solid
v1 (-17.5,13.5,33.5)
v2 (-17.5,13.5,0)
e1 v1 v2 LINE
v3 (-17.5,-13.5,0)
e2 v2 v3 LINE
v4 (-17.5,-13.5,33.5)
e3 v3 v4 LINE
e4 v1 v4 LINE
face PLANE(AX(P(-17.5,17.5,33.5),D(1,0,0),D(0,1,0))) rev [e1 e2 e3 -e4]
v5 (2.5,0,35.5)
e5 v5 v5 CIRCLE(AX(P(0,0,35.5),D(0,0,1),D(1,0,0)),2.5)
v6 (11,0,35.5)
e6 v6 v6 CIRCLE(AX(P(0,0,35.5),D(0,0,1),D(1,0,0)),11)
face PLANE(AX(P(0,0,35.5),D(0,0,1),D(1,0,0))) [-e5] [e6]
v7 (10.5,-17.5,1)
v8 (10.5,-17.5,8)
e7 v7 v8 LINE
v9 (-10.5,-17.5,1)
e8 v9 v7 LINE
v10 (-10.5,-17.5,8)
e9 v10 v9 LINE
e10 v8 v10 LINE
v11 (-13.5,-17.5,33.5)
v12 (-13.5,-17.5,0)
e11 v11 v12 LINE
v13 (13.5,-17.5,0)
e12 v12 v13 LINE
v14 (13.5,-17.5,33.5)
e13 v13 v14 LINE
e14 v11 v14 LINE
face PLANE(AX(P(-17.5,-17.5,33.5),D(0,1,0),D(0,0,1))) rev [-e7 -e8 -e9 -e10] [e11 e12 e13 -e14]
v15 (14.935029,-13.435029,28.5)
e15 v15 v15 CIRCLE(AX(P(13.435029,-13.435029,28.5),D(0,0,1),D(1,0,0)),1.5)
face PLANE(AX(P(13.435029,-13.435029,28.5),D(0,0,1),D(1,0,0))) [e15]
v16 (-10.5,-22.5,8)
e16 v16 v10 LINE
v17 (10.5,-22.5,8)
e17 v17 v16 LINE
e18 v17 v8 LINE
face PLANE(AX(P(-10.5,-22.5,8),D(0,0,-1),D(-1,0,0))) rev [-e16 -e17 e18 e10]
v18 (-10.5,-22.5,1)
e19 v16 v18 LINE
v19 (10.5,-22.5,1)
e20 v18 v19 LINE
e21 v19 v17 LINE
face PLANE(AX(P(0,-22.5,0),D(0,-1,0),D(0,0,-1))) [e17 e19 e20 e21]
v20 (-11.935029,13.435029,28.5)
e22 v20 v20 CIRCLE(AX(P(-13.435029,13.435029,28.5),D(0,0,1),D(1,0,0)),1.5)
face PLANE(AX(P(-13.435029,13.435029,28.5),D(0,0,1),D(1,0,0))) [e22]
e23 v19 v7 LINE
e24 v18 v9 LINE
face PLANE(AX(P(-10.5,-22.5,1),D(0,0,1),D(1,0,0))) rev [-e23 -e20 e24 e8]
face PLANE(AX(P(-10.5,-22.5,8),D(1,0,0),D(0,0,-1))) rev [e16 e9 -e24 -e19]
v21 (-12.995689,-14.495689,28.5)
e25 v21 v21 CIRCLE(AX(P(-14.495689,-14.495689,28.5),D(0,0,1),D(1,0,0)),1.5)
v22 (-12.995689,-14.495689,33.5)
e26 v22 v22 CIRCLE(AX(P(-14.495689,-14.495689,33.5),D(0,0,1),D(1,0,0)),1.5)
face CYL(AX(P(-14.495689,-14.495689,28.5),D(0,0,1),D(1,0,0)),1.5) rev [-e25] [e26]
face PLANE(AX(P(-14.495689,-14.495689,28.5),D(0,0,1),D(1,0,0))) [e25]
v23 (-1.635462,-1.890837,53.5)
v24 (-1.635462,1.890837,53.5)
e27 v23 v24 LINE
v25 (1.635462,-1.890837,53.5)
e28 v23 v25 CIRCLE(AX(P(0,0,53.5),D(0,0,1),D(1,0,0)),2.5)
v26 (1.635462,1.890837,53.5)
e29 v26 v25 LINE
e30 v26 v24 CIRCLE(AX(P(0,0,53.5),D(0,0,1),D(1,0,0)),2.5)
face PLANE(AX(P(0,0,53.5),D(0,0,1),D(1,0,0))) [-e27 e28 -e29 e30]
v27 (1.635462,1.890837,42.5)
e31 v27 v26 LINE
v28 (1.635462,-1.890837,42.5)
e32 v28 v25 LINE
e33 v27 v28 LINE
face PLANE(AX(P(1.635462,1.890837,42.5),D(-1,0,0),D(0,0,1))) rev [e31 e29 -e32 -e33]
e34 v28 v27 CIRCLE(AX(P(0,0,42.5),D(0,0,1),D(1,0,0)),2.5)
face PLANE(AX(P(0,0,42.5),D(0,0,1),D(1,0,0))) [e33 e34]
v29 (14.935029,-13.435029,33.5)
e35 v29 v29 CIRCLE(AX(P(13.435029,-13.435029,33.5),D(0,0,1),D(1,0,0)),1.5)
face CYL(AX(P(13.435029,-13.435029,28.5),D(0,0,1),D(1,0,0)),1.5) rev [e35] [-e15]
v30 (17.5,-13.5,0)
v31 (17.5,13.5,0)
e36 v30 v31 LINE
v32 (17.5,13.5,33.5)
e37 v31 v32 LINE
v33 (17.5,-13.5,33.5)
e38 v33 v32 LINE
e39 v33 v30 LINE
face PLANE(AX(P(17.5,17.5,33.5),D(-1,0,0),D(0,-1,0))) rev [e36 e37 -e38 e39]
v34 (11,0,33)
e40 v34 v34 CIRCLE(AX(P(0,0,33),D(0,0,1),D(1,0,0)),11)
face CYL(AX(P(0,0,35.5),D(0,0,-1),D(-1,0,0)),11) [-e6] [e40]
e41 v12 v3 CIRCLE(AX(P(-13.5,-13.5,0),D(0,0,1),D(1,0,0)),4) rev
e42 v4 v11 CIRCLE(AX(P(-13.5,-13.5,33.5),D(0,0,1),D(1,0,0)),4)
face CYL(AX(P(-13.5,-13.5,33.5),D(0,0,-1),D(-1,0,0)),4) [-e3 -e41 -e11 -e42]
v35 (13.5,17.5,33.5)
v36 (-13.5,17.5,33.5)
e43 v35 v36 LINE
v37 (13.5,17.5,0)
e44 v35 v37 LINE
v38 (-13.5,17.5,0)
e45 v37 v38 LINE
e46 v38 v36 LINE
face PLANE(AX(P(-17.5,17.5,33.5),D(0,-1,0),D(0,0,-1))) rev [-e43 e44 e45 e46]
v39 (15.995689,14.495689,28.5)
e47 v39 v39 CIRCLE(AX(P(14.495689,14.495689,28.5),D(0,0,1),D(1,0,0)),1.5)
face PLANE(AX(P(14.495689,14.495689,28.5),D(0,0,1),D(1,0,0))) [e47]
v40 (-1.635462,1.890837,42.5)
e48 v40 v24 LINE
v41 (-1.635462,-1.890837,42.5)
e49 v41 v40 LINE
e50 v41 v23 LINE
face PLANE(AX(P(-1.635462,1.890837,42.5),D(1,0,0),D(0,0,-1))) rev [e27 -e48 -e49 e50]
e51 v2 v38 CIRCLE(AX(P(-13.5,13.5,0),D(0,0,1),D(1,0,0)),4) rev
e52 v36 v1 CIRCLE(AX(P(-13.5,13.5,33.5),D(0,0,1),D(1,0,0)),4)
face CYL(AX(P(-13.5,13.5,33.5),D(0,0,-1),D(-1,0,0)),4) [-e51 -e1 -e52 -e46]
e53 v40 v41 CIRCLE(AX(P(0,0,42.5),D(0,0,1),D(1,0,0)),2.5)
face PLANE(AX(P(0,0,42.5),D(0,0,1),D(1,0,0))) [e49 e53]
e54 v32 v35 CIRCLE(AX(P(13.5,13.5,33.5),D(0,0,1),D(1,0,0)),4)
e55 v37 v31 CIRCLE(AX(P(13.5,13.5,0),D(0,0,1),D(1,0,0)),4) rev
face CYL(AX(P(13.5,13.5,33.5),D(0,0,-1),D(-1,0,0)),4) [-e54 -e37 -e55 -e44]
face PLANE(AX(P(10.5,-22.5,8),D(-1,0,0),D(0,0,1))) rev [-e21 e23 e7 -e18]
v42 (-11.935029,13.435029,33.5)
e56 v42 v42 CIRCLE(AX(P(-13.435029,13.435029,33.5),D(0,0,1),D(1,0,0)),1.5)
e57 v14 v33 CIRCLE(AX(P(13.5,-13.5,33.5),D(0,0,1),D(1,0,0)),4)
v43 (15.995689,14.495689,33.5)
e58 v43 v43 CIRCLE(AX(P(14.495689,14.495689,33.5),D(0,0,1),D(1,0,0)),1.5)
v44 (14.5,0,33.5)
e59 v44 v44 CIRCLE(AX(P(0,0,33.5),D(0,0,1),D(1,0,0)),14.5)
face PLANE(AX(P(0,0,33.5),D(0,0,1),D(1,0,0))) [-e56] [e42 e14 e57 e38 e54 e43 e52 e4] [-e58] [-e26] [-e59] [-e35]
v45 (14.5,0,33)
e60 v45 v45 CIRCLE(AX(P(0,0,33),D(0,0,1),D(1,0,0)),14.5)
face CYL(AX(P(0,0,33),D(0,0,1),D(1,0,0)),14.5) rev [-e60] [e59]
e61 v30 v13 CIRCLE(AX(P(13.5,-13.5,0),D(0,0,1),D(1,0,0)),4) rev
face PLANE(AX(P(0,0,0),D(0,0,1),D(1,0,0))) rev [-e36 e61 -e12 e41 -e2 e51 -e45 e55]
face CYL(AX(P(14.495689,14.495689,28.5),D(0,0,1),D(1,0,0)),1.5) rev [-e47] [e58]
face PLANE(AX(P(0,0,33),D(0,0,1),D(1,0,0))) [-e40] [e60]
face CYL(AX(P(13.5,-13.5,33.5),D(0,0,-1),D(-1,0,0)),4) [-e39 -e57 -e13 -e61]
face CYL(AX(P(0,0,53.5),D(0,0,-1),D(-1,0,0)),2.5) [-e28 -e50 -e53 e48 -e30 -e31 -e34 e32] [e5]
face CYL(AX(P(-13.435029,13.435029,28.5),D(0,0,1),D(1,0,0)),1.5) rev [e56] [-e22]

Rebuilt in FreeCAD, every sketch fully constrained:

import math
import FreeCAD as App
import Part
import Sketcher

V = App.Vector
Q = App.Units.Quantity


def edges_at(feature, points):
    """Names of the edges that pass closest to the given points."""
    edges = feature.Shape.Edges
    near = lambda p: min(range(len(edges)), key=lambda i: edges[i].distToShape(Part.Vertex(*p))[0])
    return sorted({f"Edge{near(p) + 1}" for p in points})


def add_polygon(sketch, points):
    """Adds a closed chain of lines whose ends are joined by coincident constraints."""
    first, n = sketch.GeometryCount, len(points)
    for a, b in zip(points, points[1:] + points[:1]):
        sketch.addGeometry(Part.LineSegment(App.Vector(*a, 0), App.Vector(*b, 0)), False)
    for i in range(n):
        sketch.addConstraint(Sketcher.Constraint("Coincident", first + i, 2, first + (i + 1) % n, 1))

doc = App.newDocument("Part")
body = doc.addObject("PartDesign::Body", "Body")

sketch1 = body.newObject("Sketcher::SketchObject", "Sketch")
sketch1.AttachmentSupport = (doc.getObject("XY_Plane"), [""])
sketch1.MapMode = "FlatFace"
add_polygon(sketch1, [(-17.5, 17.5), (-17.5, -17.5), (17.5, -17.5), (17.5, 17.5)])
sketch1.addConstraint([
    Sketcher.Constraint("Vertical", 0),
    Sketcher.Constraint("Horizontal", 1),
    Sketcher.Constraint("Vertical", 2),
    Sketcher.Constraint("Horizontal", 3),
    Sketcher.Constraint("Symmetric", 0, 2, 2, 2, -1, 1),
    Sketcher.Constraint("Equal", 3, 0),
    Sketcher.Constraint("DistanceX", 1, 1, 1, 2, Q("35 mm")),
])
pad1 = body.newObject("PartDesign::Pad", "Pad")
pad1.Profile = sketch1
pad1.Length = 33.5

sketch2 = body.newObject("Sketcher::SketchObject", "Sketch001")
sketch2.AttachmentSupport = (doc.getObject("XY_Plane"), [""])
sketch2.MapMode = "FlatFace"
sketch2.AttachmentOffset = App.Placement(V(0, 0, 33.5), App.Rotation())
sketch2.addGeometry(Part.Circle(V(0, 0, 0), V(0, 0, 1), 11), False)
sketch2.addConstraint([
    Sketcher.Constraint("Coincident", 0, 3, -1, 1),
    Sketcher.Constraint("Diameter", 0, Q("22 mm")),
])
pad2 = body.newObject("PartDesign::Pad", "Pad001")
pad2.Profile = sketch2
pad2.Length = 2

sketch3 = body.newObject("Sketcher::SketchObject", "Sketch002")
sketch3.AttachmentSupport = (doc.getObject("XY_Plane"), [""])
sketch3.MapMode = "FlatFace"
sketch3.AttachmentOffset = App.Placement(V(0, 0, 33), App.Rotation())
sketch3.addGeometry([
    Part.Circle(V(0, 0, 0), V(0, 0, 1), 14.5),
    Part.Circle(V(0, 0, 0), V(0, 0, 1), 11),
], False)
sketch3.addConstraint([
    Sketcher.Constraint("Coincident", 0, 3, -1, 1),
    Sketcher.Constraint("Coincident", 1, 3, -1, 1),
    Sketcher.Constraint("Diameter", 0, Q("29 mm")),
    Sketcher.Constraint("Diameter", 1, Q("22 mm")),
])
pocket1 = body.newObject("PartDesign::Pocket", "Pocket")
pocket1.Profile = sketch3
pocket1.Length = 0.5
pocket1.Reversed = True
doc.recompute()

fillet = body.newObject("PartDesign::Fillet", "Fillet")
fillet.Base = (pocket1, edges_at(pocket1, [
    (17.5, -17.5, 16.75),
    (-17.5, -17.5, 16.75),
    (-17.5, 17.5, 16.75),
    (17.5, 17.5, 16.75),
]))
fillet.Radius = 4

sketch4 = body.newObject("Sketcher::SketchObject", "Sketch003")
sketch4.AttachmentSupport = (doc.getObject("XY_Plane"), [""])
sketch4.MapMode = "FlatFace"
sketch4.AttachmentOffset = App.Placement(V(0, 0, 33.5), App.Rotation())
sketch4.addGeometry([
    Part.Circle(V(14.495689, 14.495689, 0), V(0, 0, 1), 1.5),
    Part.Circle(V(-14.495689, -14.495689, 0), V(0, 0, 1), 1.5),
    Part.Circle(V(-13.435029, 13.435029, 0), V(0, 0, 1), 1.5),
    Part.Circle(V(13.435029, -13.435029, 0), V(0, 0, 1), 1.5),
], False)
sketch4.addConstraint([
    Sketcher.Constraint("Equal", 0, 1),
    Sketcher.Constraint("Equal", 1, 2),
    Sketcher.Constraint("Equal", 2, 3),
    Sketcher.Constraint("Symmetric", 0, 3, 1, 3, -1, 1),
    Sketcher.Constraint("Symmetric", 2, 3, 3, 3, -1, 1),
    Sketcher.Constraint("Diameter", 0, Q("3 mm")),
    Sketcher.Constraint("DistanceX", -1, 1, 0, 3, Q("14.495689 mm")),
    Sketcher.Constraint("DistanceY", -1, 1, 0, 3, Q("14.495689 mm")),
    Sketcher.Constraint("DistanceX", 2, 3, -1, 1, Q("13.435029 mm")),
    Sketcher.Constraint("DistanceY", -1, 1, 2, 3, Q("13.435029 mm")),
])
pocket2 = body.newObject("PartDesign::Pocket", "Pocket001")
pocket2.Profile = sketch4
pocket2.Length = 5

sketch5 = body.newObject("Sketcher::SketchObject", "Sketch004")
sketch5.AttachmentSupport = (doc.getObject("XY_Plane"), [""])
sketch5.MapMode = "FlatFace"
sketch5.AttachmentOffset = App.Placement(V(0, 0, 35.5), App.Rotation())
sketch5.addGeometry(Part.Circle(V(0, 0, 0), V(0, 0, 1), 2.5), False)
sketch5.addConstraint([
    Sketcher.Constraint("Coincident", 0, 3, -1, 1),
    Sketcher.Constraint("Diameter", 0, Q("5 mm")),
])
pad3 = body.newObject("PartDesign::Pad", "Pad002")
pad3.Profile = sketch5
pad3.Length = 18

sketch6 = body.newObject("Sketcher::SketchObject", "Sketch005")
sketch6.AttachmentSupport = (doc.getObject("XY_Plane"), [""])
sketch6.MapMode = "FlatFace"
sketch6.AttachmentOffset = App.Placement(V(0, 0, 42.5), App.Rotation())
sketch6.addGeometry([
    Part.LineSegment(V(1.635462, 1.890837, 0), V(1.635462, -1.890837, 0)),
    Part.ArcOfCircle(Part.Circle(V(0, 0, 0), V(0, 0, 1), 2.5), math.radians(-49.142129), math.radians(49.142129)),
    Part.LineSegment(V(-1.635462, -1.890837, 0), V(-1.635462, 1.890837, 0)),
    Part.ArcOfCircle(Part.Circle(V(0, 0, 0), V(0, 0, 1), 2.5), math.radians(130.857871), math.radians(229.142129)),
], False)
sketch6.addConstraint([
    Sketcher.Constraint("Coincident", 0, 1, 1, 2),
    Sketcher.Constraint("Coincident", 1, 1, 0, 2),
    Sketcher.Constraint("Coincident", 2, 1, 3, 2),
    Sketcher.Constraint("Coincident", 3, 1, 2, 2),
    Sketcher.Constraint("Vertical", 0),
    Sketcher.Constraint("Vertical", 2),
    Sketcher.Constraint("Coincident", 1, 3, -1, 1),
    Sketcher.Constraint("Coincident", 3, 3, -1, 1),
    Sketcher.Constraint("Equal", 1, 3),
    Sketcher.Constraint("Horizontal", 1, 1, 2, 1),
    Sketcher.Constraint("Radius", 1, Q("2.5 mm")),
    Sketcher.Constraint("DistanceY", 0, 2, 0, 1, Q("3.781673 mm")),
])
pocket3 = body.newObject("PartDesign::Pocket", "Pocket002")
pocket3.Profile = sketch6
pocket3.Length = 11
pocket3.Reversed = True

sketch7 = body.newObject("Sketcher::SketchObject", "Sketch006")
sketch7.AttachmentSupport = (doc.getObject("XZ_Plane"), [""])
sketch7.MapMode = "FlatFace"
sketch7.AttachmentOffset = App.Placement(V(0, 0, 17.5), App.Rotation())
add_polygon(sketch7, [(-10.5, 8), (-10.5, 1), (10.5, 1), (10.5, 8)])
sketch7.addConstraint([
    Sketcher.Constraint("Vertical", 0),
    Sketcher.Constraint("Horizontal", 1),
    Sketcher.Constraint("Vertical", 2),
    Sketcher.Constraint("Horizontal", 3),
    Sketcher.Constraint("DistanceX", 1, 1, 1, 2, Q("21 mm")),
    Sketcher.Constraint("DistanceY", 0, 2, 0, 1, Q("7 mm")),
    Sketcher.Constraint("DistanceY", -1, 1, 0, 2, Q("1 mm")),
    Sketcher.Constraint("DistanceX", 0, 2, -1, 1, Q("10.5 mm")),
])
pad4 = body.newObject("PartDesign::Pad", "Pad003")
pad4.Profile = sketch7
pad4.Length = 5

doc.recompute()
